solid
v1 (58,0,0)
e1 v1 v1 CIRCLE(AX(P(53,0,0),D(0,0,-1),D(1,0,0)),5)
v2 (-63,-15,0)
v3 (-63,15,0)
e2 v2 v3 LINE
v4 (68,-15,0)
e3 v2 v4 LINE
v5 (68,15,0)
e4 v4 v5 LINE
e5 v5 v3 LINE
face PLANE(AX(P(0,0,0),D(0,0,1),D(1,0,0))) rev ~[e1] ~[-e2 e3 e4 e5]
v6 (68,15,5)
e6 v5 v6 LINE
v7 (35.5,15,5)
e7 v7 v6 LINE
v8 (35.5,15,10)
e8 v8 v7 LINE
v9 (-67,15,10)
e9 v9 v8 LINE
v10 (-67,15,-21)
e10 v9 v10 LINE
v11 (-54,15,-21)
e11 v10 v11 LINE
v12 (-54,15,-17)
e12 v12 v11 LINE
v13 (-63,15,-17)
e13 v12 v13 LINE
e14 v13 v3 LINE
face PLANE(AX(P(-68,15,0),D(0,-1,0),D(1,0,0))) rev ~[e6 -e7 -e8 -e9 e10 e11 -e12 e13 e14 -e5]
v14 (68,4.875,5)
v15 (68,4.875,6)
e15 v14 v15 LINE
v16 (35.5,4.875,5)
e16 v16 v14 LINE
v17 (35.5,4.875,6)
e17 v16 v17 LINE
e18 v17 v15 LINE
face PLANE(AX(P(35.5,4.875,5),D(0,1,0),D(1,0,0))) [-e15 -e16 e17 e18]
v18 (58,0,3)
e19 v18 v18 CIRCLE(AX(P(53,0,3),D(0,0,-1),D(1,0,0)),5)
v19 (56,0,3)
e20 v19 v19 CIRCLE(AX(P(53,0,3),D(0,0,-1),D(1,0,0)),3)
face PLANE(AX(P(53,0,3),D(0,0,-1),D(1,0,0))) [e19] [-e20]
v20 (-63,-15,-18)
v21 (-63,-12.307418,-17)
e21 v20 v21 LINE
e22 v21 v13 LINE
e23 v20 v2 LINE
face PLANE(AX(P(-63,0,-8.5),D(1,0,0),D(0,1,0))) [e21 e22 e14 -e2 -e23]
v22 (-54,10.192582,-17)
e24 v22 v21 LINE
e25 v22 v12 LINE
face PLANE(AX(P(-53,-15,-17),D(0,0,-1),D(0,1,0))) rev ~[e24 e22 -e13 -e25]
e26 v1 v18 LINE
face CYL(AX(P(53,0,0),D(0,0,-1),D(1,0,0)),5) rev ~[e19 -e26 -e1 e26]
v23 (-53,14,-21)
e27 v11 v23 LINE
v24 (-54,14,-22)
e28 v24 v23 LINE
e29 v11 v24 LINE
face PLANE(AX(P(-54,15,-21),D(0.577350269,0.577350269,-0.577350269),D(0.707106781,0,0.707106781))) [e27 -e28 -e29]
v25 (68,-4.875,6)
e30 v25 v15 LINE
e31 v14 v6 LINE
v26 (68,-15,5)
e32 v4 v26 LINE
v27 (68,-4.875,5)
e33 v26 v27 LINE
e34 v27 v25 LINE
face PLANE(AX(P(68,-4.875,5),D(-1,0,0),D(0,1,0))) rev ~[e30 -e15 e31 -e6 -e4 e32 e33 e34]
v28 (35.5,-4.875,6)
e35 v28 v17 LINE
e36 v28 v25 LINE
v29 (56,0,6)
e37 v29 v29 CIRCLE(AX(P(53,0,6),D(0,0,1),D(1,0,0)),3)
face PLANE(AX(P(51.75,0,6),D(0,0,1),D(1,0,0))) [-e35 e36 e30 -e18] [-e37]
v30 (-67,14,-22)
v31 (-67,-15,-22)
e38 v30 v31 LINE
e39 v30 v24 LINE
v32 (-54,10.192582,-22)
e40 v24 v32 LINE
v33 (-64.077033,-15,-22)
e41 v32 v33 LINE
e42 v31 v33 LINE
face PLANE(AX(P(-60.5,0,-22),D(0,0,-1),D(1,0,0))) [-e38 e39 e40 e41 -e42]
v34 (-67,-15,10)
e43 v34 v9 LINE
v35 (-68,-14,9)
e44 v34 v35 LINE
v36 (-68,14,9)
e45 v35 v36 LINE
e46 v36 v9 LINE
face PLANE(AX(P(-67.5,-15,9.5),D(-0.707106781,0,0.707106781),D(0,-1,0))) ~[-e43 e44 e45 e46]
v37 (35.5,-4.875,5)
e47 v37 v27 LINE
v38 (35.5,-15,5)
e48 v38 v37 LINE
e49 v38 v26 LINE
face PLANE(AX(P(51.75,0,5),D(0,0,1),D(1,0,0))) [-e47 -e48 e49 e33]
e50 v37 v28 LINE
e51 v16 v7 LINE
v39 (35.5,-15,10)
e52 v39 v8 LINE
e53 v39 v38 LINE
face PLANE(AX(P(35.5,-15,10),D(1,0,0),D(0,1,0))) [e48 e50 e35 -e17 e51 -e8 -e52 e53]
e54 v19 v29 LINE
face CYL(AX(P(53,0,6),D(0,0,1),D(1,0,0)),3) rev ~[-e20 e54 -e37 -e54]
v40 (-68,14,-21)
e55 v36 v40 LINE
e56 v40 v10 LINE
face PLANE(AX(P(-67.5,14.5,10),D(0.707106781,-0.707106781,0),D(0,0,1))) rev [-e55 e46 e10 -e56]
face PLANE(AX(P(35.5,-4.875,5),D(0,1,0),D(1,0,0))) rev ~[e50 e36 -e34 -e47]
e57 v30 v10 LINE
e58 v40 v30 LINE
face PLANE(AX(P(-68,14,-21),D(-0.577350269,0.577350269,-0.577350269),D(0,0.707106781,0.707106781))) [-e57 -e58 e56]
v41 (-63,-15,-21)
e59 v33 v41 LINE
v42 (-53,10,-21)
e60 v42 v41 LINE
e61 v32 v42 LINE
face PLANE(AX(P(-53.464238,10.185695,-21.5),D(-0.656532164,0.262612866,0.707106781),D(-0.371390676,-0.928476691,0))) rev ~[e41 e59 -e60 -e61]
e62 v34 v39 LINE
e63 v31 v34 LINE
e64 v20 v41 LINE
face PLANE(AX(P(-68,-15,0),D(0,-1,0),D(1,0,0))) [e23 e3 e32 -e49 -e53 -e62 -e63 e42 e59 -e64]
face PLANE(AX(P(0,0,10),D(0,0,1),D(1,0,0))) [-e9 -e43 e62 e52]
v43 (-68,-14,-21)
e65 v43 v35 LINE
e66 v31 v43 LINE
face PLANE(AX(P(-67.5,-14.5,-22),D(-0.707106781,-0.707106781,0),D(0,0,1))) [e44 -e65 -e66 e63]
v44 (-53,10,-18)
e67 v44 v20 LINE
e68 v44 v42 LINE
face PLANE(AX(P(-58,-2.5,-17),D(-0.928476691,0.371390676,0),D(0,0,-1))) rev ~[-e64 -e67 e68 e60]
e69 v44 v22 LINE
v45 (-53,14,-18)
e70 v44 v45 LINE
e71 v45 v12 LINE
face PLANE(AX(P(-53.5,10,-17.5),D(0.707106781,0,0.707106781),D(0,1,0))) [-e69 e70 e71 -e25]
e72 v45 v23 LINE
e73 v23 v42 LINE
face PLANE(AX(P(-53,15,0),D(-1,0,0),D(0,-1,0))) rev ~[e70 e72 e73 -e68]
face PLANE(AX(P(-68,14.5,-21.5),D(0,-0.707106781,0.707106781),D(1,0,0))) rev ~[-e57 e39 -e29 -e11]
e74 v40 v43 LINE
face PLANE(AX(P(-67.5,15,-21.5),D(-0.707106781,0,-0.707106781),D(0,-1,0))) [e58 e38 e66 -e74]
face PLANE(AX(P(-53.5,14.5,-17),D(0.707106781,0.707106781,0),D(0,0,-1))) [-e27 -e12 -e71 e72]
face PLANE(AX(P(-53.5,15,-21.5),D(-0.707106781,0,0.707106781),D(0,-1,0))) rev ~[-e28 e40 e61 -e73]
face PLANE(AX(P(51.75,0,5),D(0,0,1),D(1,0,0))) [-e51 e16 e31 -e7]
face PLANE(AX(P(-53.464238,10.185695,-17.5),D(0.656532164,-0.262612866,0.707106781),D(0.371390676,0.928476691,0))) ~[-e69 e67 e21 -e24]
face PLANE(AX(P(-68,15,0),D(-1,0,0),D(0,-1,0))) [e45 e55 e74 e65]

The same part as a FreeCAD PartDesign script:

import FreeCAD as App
import Part
import Sketcher
Q = App.Units.Quantity


def edges_at(feature, points):
    """Names of the edges that pass closest to the given points."""
    edges = feature.Shape.Edges
    near = lambda p: min(range(len(edges)), key=lambda i: edges[i].distToShape(Part.Vertex(*p))[0])
    return sorted({f"Edge{near(p) + 1}" for p in points})

doc = App.newDocument("Part")
body = doc.addObject("PartDesign::Body", "Body")

# Sketch on XY plane
sketch1 = body.newObject("Sketcher::SketchObject", "Sketch")
sketch1.AttachmentSupport = (doc.getObject("XY_Plane"), [""])
sketch1.MapMode = "FlatFace"
sketch1.addGeometry([
    Part.LineSegment(App.Vector(-68, 15, 0), App.Vector(-68, -15, 0)),
    Part.LineSegment(App.Vector(-68, -15, 0), App.Vector(68, -15, 0)),
    Part.LineSegment(App.Vector(68, -15, 0), App.Vector(68, 15, 0)),
    Part.LineSegment(App.Vector(68, 15, 0), App.Vector(-68, 15, 0)),
], False)
sketch1.addConstraint([
    Sketcher.Constraint("Coincident", 0, 2, 1, 1),
    Sketcher.Constraint("Coincident", 1, 2, 2, 1),
    Sketcher.Constraint("Coincident", 2, 2, 3, 1),
    Sketcher.Constraint("Coincident", 3, 2, 0, 1),
    Sketcher.Constraint("Vertical", 0),
    Sketcher.Constraint("Horizontal", 1),
    Sketcher.Constraint("Vertical", 2),
    Sketcher.Constraint("Horizontal", 3),
    Sketcher.Constraint("Symmetric", 0, 2, 2, 2, -1, 1),
    Sketcher.Constraint("DistanceX", 1, 1, 1, 2, Q("136 mm")),
    Sketcher.Constraint("DistanceY", 0, 2, 0, 1, Q("30 mm")),
])
pad1 = body.newObject("PartDesign::Pad", "Pad")
pad1.Profile = sketch1
pad1.Length = 10

# Sketch on XY plane
sketch2 = body.newObject("Sketcher::SketchObject", "Sketch001")
sketch2.AttachmentSupport = (doc.getObject("XY_Plane"), [""])
sketch2.MapMode = "FlatFace"
sketch2.addGeometry([
    Part.LineSegment(App.Vector(-68, -15, 0), App.Vector(-68, 15, 0)),
    Part.LineSegment(App.Vector(-68, 15, 0), App.Vector(-53, 15, 0)),
    Part.LineSegment(App.Vector(-53, 15, 0), App.Vector(-53, -15, 0)),
    Part.LineSegment(App.Vector(-53, -15, 0), App.Vector(-68, -15, 0)),
], False)
sketch2.addConstraint([
    Sketcher.Constraint("Coincident", 0, 2, 1, 1),
    Sketcher.Constraint("Coincident", 1, 2, 2, 1),
    Sketcher.Constraint("Coincident", 2, 2, 3, 1),
    Sketcher.Constraint("Coincident", 3, 2, 0, 1),
    Sketcher.Constraint("Vertical", 0),
    Sketcher.Constraint("Horizontal", 1),
    Sketcher.Constraint("Vertical", 2),
    Sketcher.Constraint("Horizontal", 3),
    Sketcher.Constraint("DistanceX", 1, 1, 1, 2, Q("15 mm")),
    Sketcher.Constraint("DistanceY", 0, 1, 0, 2, Q("30 mm")),
    Sketcher.Constraint("DistanceX", 0, 2, -1, 1, Q("68 mm")),
    Sketcher.Constraint("DistanceY", -1, 1, 0, 2, Q("15 mm")),
])
pad2 = body.newObject("PartDesign::Pad", "Pad001")
pad2.Profile = sketch2
pad2.Length = 22
pad2.Reversed = True

# Sketch on YZ plane
sketch3 = body.newObject("Sketcher::SketchObject", "Sketch002")
sketch3.AttachmentSupport = (doc.getObject("YZ_Plane"), [""])
sketch3.MapMode = "FlatFace"
sketch3.AttachmentOffset = App.Placement(App.Vector(0, 0, -53), App.Rotation())
sketch3.addGeometry([
    Part.LineSegment(App.Vector(-15, 0, 0), App.Vector(-15, -17, 0)),
    Part.LineSegment(App.Vector(-15, -17, 0), App.Vector(15, -17, 0)),
    Part.LineSegment(App.Vector(15, -17, 0), App.Vector(15, 0, 0)),
    Part.LineSegment(App.Vector(15, 0, 0), App.Vector(-15, 0, 0)),
], False)
sketch3.addConstraint([
    Sketcher.Constraint("Coincident", 0, 2, 1, 1),
    Sketcher.Constraint("Coincident", 1, 2, 2, 1),
    Sketcher.Constraint("Coincident", 2, 2, 3, 1),
    Sketcher.Constraint("Coincident", 3, 2, 0, 1),
    Sketcher.Constraint("Vertical", 0),
    Sketcher.Constraint("Horizontal", 1),
    Sketcher.Constraint("Vertical", 2),
    Sketcher.Constraint("Horizontal", 3),
    Sketcher.Constraint("Symmetric", 2, 2, 3, 2, -1, 1),
    Sketcher.Constraint("DistanceX", 1, 1, 1, 2, Q("30 mm")),
    Sketcher.Constraint("DistanceY", 0, 2, 0, 1, Q("17 mm")),
])
pocket1 = body.newObject("PartDesign::Pocket", "Pocket")
pocket1.Profile = sketch3
pocket1.Length = 10

# Sketch on XY plane
sketch4 = body.newObject("Sketcher::SketchObject", "Sketch003")
sketch4.AttachmentSupport = (doc.getObject("XY_Plane"), [""])
sketch4.MapMode = "FlatFace"
sketch4.addGeometry(Part.Circle(App.Vector(53, 0, 0), App.Vector(0, 0, 1), 3), False)
sketch4.addConstraint([
    Sketcher.Constraint("PointOnObject", 0, 3, -1),
    Sketcher.Constraint("Diameter", 0, Q("6 mm")),
    Sketcher.Constraint("DistanceX", -1, 1, 0, 3, Q("53 mm")),
])
pocket2 = body.newObject("PartDesign::Pocket", "Pocket001")
pocket2.Profile = sketch4
pocket2.Type = "ThroughAll"
pocket2.Reversed = True

# Sketch on XY plane
sketch5 = body.newObject("Sketcher::SketchObject", "Sketch004")
sketch5.AttachmentSupport = (doc.getObject("XY_Plane"), [""])
sketch5.MapMode = "FlatFace"
sketch5.AttachmentOffset = App.Placement(App.Vector(0, 0, 10), App.Rotation())
sketch5.addGeometry([
    Part.LineSegment(App.Vector(36, 15, 0), App.Vector(36, -15, 0)),
    Part.LineSegment(App.Vector(36, -15, 0), App.Vector(68, -15, 0)),
    Part.LineSegment(App.Vector(68, -15, 0), App.Vector(68, 15, 0)),
    Part.LineSegment(App.Vector(68, 15, 0), App.Vector(36, 15, 0)),
], False)
sketch5.addConstraint([
    Sketcher.Constraint("Coincident", 0, 2, 1, 1),
    Sketcher.Constraint("Coincident", 1, 2, 2, 1),
    Sketcher.Constraint("Coincident", 2, 2, 3, 1),
    Sketcher.Constraint("Coincident", 3, 2, 0, 1),
    Sketcher.Constraint("Vertical", 0),
    Sketcher.Constraint("Horizontal", 1),
    Sketcher.Constraint("Vertical", 2),
    Sketcher.Constraint("Horizontal", 3),
    Sketcher.Constraint("DistanceY", 0, 2, 0, 1, Q("30 mm")),
    Sketcher.Constraint("DistanceX", 1, 1, 1, 2, Q("32.5 mm")),
    Sketcher.Constraint("DistanceY", 0, 2, -1, 1, Q("15 mm")),
    Sketcher.Constraint("DistanceX", -1, 1, 1, 2, Q("68 mm")),
])
pocket3 = body.newObject("PartDesign::Pocket", "Pocket002")
pocket3.Profile = sketch5
pocket3.Length = 5

# Sketch on XY plane
sketch6 = body.newObject("Sketcher::SketchObject", "Sketch005")
sketch6.AttachmentSupport = (doc.getObject("XY_Plane"), [""])
sketch6.MapMode = "FlatFace"
sketch6.addGeometry(Part.Circle(App.Vector(53, 0, 0), App.Vector(0, 0, 1), 5), False)
sketch6.addConstraint([
    Sketcher.Constraint("PointOnObject", 0, 3, -1),
    Sketcher.Constraint("Diameter", 0, Q("10 mm")),
    Sketcher.Constraint("DistanceX", -1, 1, 0, 3, Q("53 mm")),
])
pocket4 = body.newObject("PartDesign::Pocket", "Pocket003")
pocket4.Profile = sketch6
pocket4.Length = 3
pocket4.Reversed = True
doc.recompute()

chamfer = body.newObject("PartDesign::Chamfer", "Chamfer")
chamfer.Base = (pocket4, edges_at(pocket4, [(-53, -15, -19.5)]))
chamfer.ChamferType = "Two distances"
chamfer.Size = 25
chamfer.Size2 = 10
chamfer.FlipDirection = True
doc.recompute()

chamfer2 = body.newObject("PartDesign::Chamfer", "Chamfer001")
chamfer2.Base = (chamfer, edges_at(chamfer, [
    (-58, -2.5, -17),
    (-58, -2.5, -22),
    (-53, 12.5, -17),
    (-53, 12.5, -22),
    (-60.5, 15, -22),
    (-53, 15, -19.5),
    (-68, 0, -22),
    (-68, -15, -6),
    (-68, -15, -6),
    (-68, 0, 10),
    (-68, 15, -6),
    (-68, 15, -6),
]))
chamfer2.Size = 1

# Sketch on XY plane
sketch7 = body.newObject("Sketcher::SketchObject", "Sketch006")
sketch7.AttachmentSupport = (doc.getObject("XY_Plane"), [""])
sketch7.MapMode = "FlatFace"
sketch7.AttachmentOffset = App.Placement(App.Vector(0, 0, 5), App.Rotation())
sketch7.addGeometry([
    Part.LineSegment(App.Vector(36, 5, 0), App.Vector(36, -5, 0)),
    Part.LineSegment(App.Vector(36, -5, 0), App.Vector(68, -5, 0)),
    Part.LineSegment(App.Vector(68, -5, 0), App.Vector(68, 5, 0)),
    Part.LineSegment(App.Vector(68, 5, 0), App.Vector(36, 5, 0)),
], False)
sketch7.addConstraint([
    Sketcher.Constraint("Coincident", 0, 2, 1, 1),
    Sketcher.Constraint("Coincident", 1, 2, 2, 1),
    Sketcher.Constraint("Coincident", 2, 2, 3, 1),
    Sketcher.Constraint("Coincident", 3, 2, 0, 1),
    Sketcher.Constraint("Vertical", 0),
    Sketcher.Constraint("Horizontal", 1),
    Sketcher.Constraint("Vertical", 2),
    Sketcher.Constraint("Horizontal", 3),
    Sketcher.Constraint("DistanceX", 1, 1, 1, 2, Q("32.5 mm")),
    Sketcher.Constraint("DistanceX", -1, 1, 1, 2, Q("68 mm")),
    Sketcher.Constraint("DistanceY", 0, 2, 0, 1, Q("9.75 mm")),
    Sketcher.Constraint("DistanceY", 0, 2, -1, 1, Q("4.875 mm")),
])
pad3 = body.newObject("PartDesign::Pad", "Pad002")
pad3.Profile = sketch7
pad3.Length = 1

# Sketch on XY plane
sketch8 = body.newObject("Sketcher::SketchObject", "Sketch007")
sketch8.AttachmentSupport = (doc.getObject("XY_Plane"), [""])
sketch8.MapMode = "FlatFace"
sketch8.AttachmentOffset = App.Placement(App.Vector(0, 0, 5), App.Rotation())
sketch8.addGeometry([
    Part.LineSegment(App.Vector(36, 5, 0), App.Vector(36, -5, 0)),
    Part.LineSegment(App.Vector(36, -5, 0), App.Vector(68, -5, 0)),
    Part.LineSegment(App.Vector(68, -5, 0), App.Vector(68, 5, 0)),
    Part.LineSegment(App.Vector(68, 5, 0), App.Vector(36, 5, 0)),
], False)
sketch8.addConstraint([
    Sketcher.Constraint("Coincident", 0, 2, 1, 1),
    Sketcher.Constraint("Coincident", 1, 2, 2, 1),
    Sketcher.Constraint("Coincident", 2, 2, 3, 1),
    Sketcher.Constraint("Coincident", 3, 2, 0, 1),
    Sketcher.Constraint("Vertical", 0),
    Sketcher.Constraint("Horizontal", 1),
    Sketcher.Constraint("Vertical", 2),
    Sketcher.Constraint("Horizontal", 3),
    Sketcher.Constraint("DistanceX", 1, 1, 1, 2, Q("32.5 mm")),
    Sketcher.Constraint("DistanceX", -1, 1, 1, 2, Q("68 mm")),
    Sketcher.Constraint("DistanceY", 0, 2, 0, 1, Q("9.75 mm")),
    Sketcher.Constraint("DistanceY", 0, 2, -1, 1, Q("4.875 mm")),
])
pad4 = body.newObject("PartDesign::Pad", "Pad003")
pad4.Profile = sketch8
pad4.Length = 1

# Sketch on XY plane
sketch9 = body.newObject("Sketcher::SketchObject", "Sketch008")
sketch9.AttachmentSupport = (doc.getObject("XY_Plane"), [""])
sketch9.MapMode = "FlatFace"
sketch9.AttachmentOffset = App.Placement(App.Vector(0, 0, 6), App.Rotation())
sketch9.addGeometry(Part.Circle(App.Vector(53, 0, 0), App.Vector(0, 0, 1), 3), False)
sketch9.addConstraint([
    Sketcher.Constraint("PointOnObject", 0, 3, -1),
    Sketcher.Constraint("Diameter", 0, Q("6 mm")),
    Sketcher.Constraint("DistanceX", -1, 1, 0, 3, Q("53 mm")),
])
pocket5 = body.newObject("PartDesign::Pocket", "Pocket004")
pocket5.Profile = sketch9
pocket5.Length = 5

doc.recompute()
